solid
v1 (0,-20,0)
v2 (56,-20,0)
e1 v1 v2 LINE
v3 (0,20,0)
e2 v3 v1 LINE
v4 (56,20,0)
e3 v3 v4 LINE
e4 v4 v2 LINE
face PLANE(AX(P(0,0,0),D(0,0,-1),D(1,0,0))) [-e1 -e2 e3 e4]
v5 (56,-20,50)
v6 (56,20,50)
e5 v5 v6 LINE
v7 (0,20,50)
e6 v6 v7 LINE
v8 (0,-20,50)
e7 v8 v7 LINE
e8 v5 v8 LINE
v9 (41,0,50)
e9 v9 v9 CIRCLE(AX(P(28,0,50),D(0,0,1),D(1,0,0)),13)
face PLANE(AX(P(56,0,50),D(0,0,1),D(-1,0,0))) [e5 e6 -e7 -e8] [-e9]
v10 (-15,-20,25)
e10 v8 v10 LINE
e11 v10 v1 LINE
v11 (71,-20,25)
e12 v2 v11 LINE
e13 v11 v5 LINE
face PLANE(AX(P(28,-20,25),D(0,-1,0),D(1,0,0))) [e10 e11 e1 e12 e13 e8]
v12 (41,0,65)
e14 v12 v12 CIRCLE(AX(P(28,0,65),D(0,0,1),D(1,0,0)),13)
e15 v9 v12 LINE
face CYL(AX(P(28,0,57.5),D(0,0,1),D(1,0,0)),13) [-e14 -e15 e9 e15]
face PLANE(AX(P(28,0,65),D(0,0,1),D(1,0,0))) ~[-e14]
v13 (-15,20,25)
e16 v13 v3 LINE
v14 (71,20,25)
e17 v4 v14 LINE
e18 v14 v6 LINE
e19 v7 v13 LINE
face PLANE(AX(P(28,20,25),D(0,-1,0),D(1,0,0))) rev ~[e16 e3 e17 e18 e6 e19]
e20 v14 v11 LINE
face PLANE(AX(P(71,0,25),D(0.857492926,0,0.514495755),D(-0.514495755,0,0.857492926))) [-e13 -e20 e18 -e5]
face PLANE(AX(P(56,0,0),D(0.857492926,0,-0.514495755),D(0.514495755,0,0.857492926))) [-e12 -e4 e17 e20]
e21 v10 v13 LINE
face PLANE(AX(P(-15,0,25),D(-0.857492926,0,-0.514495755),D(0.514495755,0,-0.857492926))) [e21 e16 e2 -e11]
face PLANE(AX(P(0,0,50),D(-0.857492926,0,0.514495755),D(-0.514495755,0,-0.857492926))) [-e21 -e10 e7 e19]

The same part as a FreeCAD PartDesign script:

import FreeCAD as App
import Part
import Sketcher
from FreeCAD import Vector

doc = App.newDocument("Part")
body = doc.addObject("PartDesign::Body", "Body")

# Sketch on XZ plane
sketch1 = doc.addObject("Sketcher::SketchObject", "Sketch")
body.addObject(sketch1)
sketch1.AttachmentSupport = (doc.XZ_Plane, [""])
sketch1.MapMode = "FlatFace"
sketch1.addGeometry(Part.LineSegment(Vector(-15, 25, 0), Vector(0, 0, 0)), False)
sketch1.addGeometry(Part.LineSegment(Vector(0, 0, 0), Vector(56, 0, 0)), False)
sketch1.addGeometry(Part.LineSegment(Vector(56, 0, 0), Vector(71, 25, 0)), False)
sketch1.addGeometry(Part.LineSegment(Vector(71, 25, 0), Vector(56, 50, 0)), False)
sketch1.addGeometry(Part.LineSegment(Vector(56, 50, 0), Vector(0, 50, 0)), False)
sketch1.addGeometry(Part.LineSegment(Vector(0, 50, 0), Vector(-15, 25, 0)), False)
sketch1.addConstraint(Sketcher.Constraint("Coincident", 0, 2, 1, 1))
sketch1.addConstraint(Sketcher.Constraint("Coincident", 1, 2, 2, 1))
sketch1.addConstraint(Sketcher.Constraint("Coincident", 2, 2, 3, 1))
sketch1.addConstraint(Sketcher.Constraint("Coincident", 3, 2, 4, 1))
sketch1.addConstraint(Sketcher.Constraint("Coincident", 4, 2, 5, 1))
sketch1.addConstraint(Sketcher.Constraint("Coincident", 5, 2, 0, 1))
sketch1.addConstraint(Sketcher.Constraint("Horizontal", 1))
sketch1.addConstraint(Sketcher.Constraint("Horizontal", 4))
sketch1.addConstraint(Sketcher.Constraint("Coincident", 0, 2, -1, 1))
sketch1.addConstraint(Sketcher.Constraint("PointOnObject", 4, 2, -2))
sketch1.addConstraint(Sketcher.Constraint("Parallel", 0, 3))
sketch1.addConstraint(Sketcher.Constraint("Parallel", 2, 5))
sketch1.addConstraint(Sketcher.Constraint("Horizontal", 2, 2, 5, 2))
sketch1.addConstraint(Sketcher.Constraint("Vertical", 1, 2, 3, 2))
sketch1.addConstraint(Sketcher.Constraint("DistanceX", 1, 1, 1, 2, 56.0))
sketch1.addConstraint(Sketcher.Constraint("DistanceX", -1, 1, 2, 2, 71.0))
sketch1.addConstraint(Sketcher.Constraint("DistanceY", -1, 1, 2, 2, 25.0))
pad1 = doc.addObject("PartDesign::Pad", "Pad")
body.addObject(pad1)
pad1.Profile = sketch1
pad1.Length = 40
pad1.Midplane = True

# Sketch on XZ plane
sketch2 = doc.addObject("Sketcher::SketchObject", "Sketch001")
body.addObject(sketch2)
sketch2.AttachmentSupport = (doc.XZ_Plane, [""])
sketch2.MapMode = "FlatFace"
sketch2.addGeometry(Part.LineSegment(Vector(28, 65, 0), Vector(28, 50, 0)), False)
sketch2.addGeometry(Part.LineSegment(Vector(28, 50, 0), Vector(41, 50, 0)), False)
sketch2.addGeometry(Part.LineSegment(Vector(41, 50, 0), Vector(41, 65, 0)), False)
sketch2.addGeometry(Part.LineSegment(Vector(41, 65, 0), Vector(28, 65, 0)), False)
sketch2.addGeometry(Part.LineSegment(Vector(28, 50, 0), Vector(28, 65, 0)), True)  # axis
sketch2.addConstraint(Sketcher.Constraint("Coincident", 0, 2, 1, 1))
sketch2.addConstraint(Sketcher.Constraint("Coincident", 1, 2, 2, 1))
sketch2.addConstraint(Sketcher.Constraint("Coincident", 2, 2, 3, 1))
sketch2.addConstraint(Sketcher.Constraint("Coincident", 3, 2, 0, 1))
sketch2.addConstraint(Sketcher.Constraint("Vertical", 0))
sketch2.addConstraint(Sketcher.Constraint("Horizontal", 1))
sketch2.addConstraint(Sketcher.Constraint("Vertical", 2))
sketch2.addConstraint(Sketcher.Constraint("Horizontal", 3))
sketch2.addConstraint(Sketcher.Constraint("Vertical", 4))
sketch2.addConstraint(Sketcher.Constraint("Coincident", 4, 1, 0, 2))
sketch2.addConstraint(Sketcher.Constraint("Horizontal", 2, 2, 4, 2))
sketch2.addConstraint(Sketcher.Constraint("DistanceX", 1, 1, 1, 2, 13.0))
sketch2.addConstraint(Sketcher.Constraint("DistanceY", 0, 2, 0, 1, 15.0))
sketch2.addConstraint(Sketcher.Constraint("DistanceX", -1, 1, 0, 2, 28.0))
sketch2.addConstraint(Sketcher.Constraint("DistanceY", -1, 1, 0, 2, 50.0))
revolution = doc.addObject("PartDesign::Revolution", "Revolution")
body.addObject(revolution)
revolution.Profile = sketch2
revolution.ReferenceAxis = (sketch2, ["Axis0"])
revolution.Angle = 360

doc.recompute()
